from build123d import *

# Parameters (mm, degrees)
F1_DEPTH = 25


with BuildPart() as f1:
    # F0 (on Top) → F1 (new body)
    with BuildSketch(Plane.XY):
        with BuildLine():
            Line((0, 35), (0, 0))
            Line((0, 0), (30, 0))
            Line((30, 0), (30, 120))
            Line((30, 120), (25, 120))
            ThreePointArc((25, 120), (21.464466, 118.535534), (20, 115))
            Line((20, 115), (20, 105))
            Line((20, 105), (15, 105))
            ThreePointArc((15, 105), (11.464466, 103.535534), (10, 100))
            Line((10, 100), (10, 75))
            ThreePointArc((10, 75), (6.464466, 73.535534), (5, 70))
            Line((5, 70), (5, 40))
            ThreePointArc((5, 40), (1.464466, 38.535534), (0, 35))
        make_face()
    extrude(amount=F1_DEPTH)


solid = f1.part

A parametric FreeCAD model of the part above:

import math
import FreeCAD as App
import Part
import Sketcher
Q = App.Units.Quantity

doc = App.newDocument("Part")
body = doc.addObject("PartDesign::Body", "Body")

sketch1 = doc.addObject("Sketcher::SketchObject", "Sketch")
body.addObject(sketch1)
sketch1.AttachmentSupport = (doc.XY_Plane, [""])
sketch1.MapMode = "FlatFace"
sketch1.addGeometry([
    Part.LineSegment(App.Vector(0, 35, 0), App.Vector(0, 0, 0)),
    Part.LineSegment(App.Vector(0, 0, 0), App.Vector(30, 0, 0)),
    Part.LineSegment(App.Vector(30, 0, 0), App.Vector(30, 120, 0)),
    Part.LineSegment(App.Vector(30, 120, 0), App.Vector(25, 120, 0)),
    Part.ArcOfCircle(Part.Circle(App.Vector(25, 115, 0), App.Vector(0, 0, 1), 5), math.radians(90), math.radians(180)),
    Part.LineSegment(App.Vector(20, 115, 0), App.Vector(20, 105, 0)),
    Part.LineSegment(App.Vector(20, 105, 0), App.Vector(15, 105, 0)),
    Part.ArcOfCircle(Part.Circle(App.Vector(15, 100, 0), App.Vector(0, 0, 1), 5), math.radians(90), math.radians(180)),
    Part.LineSegment(App.Vector(10, 100, 0), App.Vector(10, 75, 0)),
    Part.ArcOfCircle(Part.Circle(App.Vector(10, 70, 0), App.Vector(0, 0, 1), 5), math.radians(90), math.radians(180)),
    Part.LineSegment(App.Vector(5, 70, 0), App.Vector(5, 40, 0)),
    Part.ArcOfCircle(Part.Circle(App.Vector(5, 35, 0), App.Vector(0, 0, 1), 5), math.radians(90), math.radians(180)),
], False)
sketch1.addConstraint([
    Sketcher.Constraint("Coincident", 0, 2, 1, 1),
    Sketcher.Constraint("Coincident", 1, 2, 2, 1),
    Sketcher.Constraint("Coincident", 2, 2, 3, 1),
    Sketcher.Constraint("Tangent", 3, 2, 4, 1),
    Sketcher.Constraint("Tangent", 4, 2, 5, 1),
    Sketcher.Constraint("Coincident", 5, 2, 6, 1),
    Sketcher.Constraint("Tangent", 6, 2, 7, 1),
    Sketcher.Constraint("Tangent", 7, 2, 8, 1),
    Sketcher.Constraint("Coincident", 8, 2, 9, 1),
    Sketcher.Constraint("Tangent", 9, 2, 10, 1),
    Sketcher.Constraint("Coincident", 10, 2, 11, 1),
    Sketcher.Constraint("Tangent", 11, 2, 0, 1),
    Sketcher.Constraint("Vertical", 0),
    Sketcher.Constraint("Horizontal", 1),
    Sketcher.Constraint("Vertical", 2),
    Sketcher.Constraint("Horizontal", 3),
    Sketcher.Constraint("Vertical", 5),
    Sketcher.Constraint("Horizontal", 6),
    Sketcher.Constraint("Vertical", 8),
    Sketcher.Constraint("Vertical", 10),
    Sketcher.Constraint("Coincident", 0, 2, -1, 1),
    Sketcher.Constraint("Equal", 4, 7),
    Sketcher.Constraint("Equal", 7, 9),
    Sketcher.Constraint("Equal", 9, 11),
    Sketcher.Constraint("Vertical", 9, 3, 7, 2),
    Sketcher.Constraint("Vertical", 11, 3, 9, 2),
    Sketcher.Constraint("Equal", 3, 6),
    Sketcher.Constraint("Equal", 1, 10),
    Sketcher.Constraint("Radius", 4, Q("5 mm")),
    Sketcher.Constraint("DistanceX", 1, 1, 1, 2, Q("30 mm")),
    Sketcher.Constraint("DistanceY", 0, 2, 0, 1, Q("35 mm")),
    Sketcher.Constraint("DistanceY", 2, 1, 2, 2, Q("120 mm")),
    Sketcher.Constraint("DistanceY", 5, 2, 5, 1, Q("10 mm")),
])
pad1 = doc.addObject("PartDesign::Pad", "Pad")
body.addObject(pad1)
pad1.Profile = sketch1
pad1.Length = 25

doc.recompute()
